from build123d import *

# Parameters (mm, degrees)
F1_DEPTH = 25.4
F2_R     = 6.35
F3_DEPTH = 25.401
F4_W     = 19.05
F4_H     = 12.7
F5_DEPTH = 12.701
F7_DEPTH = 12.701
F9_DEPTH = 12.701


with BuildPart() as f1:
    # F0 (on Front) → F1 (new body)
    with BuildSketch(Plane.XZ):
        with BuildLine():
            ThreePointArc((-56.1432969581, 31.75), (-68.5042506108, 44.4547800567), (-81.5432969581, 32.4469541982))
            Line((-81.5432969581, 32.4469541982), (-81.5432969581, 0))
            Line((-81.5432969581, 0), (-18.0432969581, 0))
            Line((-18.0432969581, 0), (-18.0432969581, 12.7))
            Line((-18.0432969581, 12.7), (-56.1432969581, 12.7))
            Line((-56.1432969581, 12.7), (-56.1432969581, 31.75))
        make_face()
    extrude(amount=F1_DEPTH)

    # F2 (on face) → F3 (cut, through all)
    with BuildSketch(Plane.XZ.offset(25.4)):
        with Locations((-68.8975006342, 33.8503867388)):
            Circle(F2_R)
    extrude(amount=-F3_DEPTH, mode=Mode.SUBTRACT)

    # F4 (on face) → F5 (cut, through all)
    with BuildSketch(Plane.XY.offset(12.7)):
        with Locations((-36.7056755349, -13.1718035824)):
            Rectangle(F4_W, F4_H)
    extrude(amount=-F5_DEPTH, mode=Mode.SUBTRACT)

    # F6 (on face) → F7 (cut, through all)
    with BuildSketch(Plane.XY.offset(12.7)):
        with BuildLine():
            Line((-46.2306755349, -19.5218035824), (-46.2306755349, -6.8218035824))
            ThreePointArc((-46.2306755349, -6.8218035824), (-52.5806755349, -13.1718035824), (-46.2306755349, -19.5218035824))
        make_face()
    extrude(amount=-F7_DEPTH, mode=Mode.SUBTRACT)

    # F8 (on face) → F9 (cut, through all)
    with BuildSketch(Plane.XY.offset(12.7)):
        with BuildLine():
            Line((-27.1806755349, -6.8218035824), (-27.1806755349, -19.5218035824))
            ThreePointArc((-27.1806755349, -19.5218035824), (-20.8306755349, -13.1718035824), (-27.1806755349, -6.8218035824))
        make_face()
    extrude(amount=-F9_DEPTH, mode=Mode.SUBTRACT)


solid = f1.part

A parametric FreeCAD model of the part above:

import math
import FreeCAD as App
import Part
import Sketcher
from FreeCAD import Vector
Q = App.Units.Quantity


def add_polygon(sketch, points):
    """Adds a closed chain of lines whose ends are joined by coincident constraints."""
    first, n = sketch.GeometryCount, len(points)
    for a, b in zip(points, points[1:] + points[:1]):
        sketch.addGeometry(Part.LineSegment(App.Vector(*a, 0), App.Vector(*b, 0)), False)
    for i in range(n):
        sketch.addConstraint(Sketcher.Constraint("Coincident", first + i, 2, first + (i + 1) % n, 1))

doc = App.newDocument("Part")
body = doc.addObject("PartDesign::Body", "Body")

# Sketch on XZ plane
sketch1 = body.newObject("Sketcher::SketchObject", "Sketch")
sketch1.AttachmentSupport = (doc.getObject("XZ_Plane"), [""])
sketch1.MapMode = "FlatFace"
sketch1.addGeometry([
    Part.ArcOfCircle(Part.Circle(Vector(-69, 32, 0), Vector(0, 0, 1), 13), math.radians(0), math.radians(177)),  # 0
    Part.LineSegment(Vector(-82, 32, 0), Vector(-82, 0, 0)),  # 1
    Part.LineSegment(Vector(-82, 0, 0), Vector(-18, 0, 0)),  # 2
    Part.LineSegment(Vector(-18, 0, 0), Vector(-18, 13, 0)),  # 3
    Part.LineSegment(Vector(-18, 13, 0), Vector(-56, 13, 0)),  # 4
    Part.LineSegment(Vector(-56, 13, 0), Vector(-56, 32, 0)),  # 5
], False)
sketch1.addConstraint([
    Sketcher.Constraint("Coincident", 0, 2, 1, 1),
    Sketcher.Constraint("Coincident", 1, 2, 2, 1),
    Sketcher.Constraint("Coincident", 2, 2, 3, 1),
    Sketcher.Constraint("Coincident", 3, 2, 4, 1),
    Sketcher.Constraint("Coincident", 4, 2, 5, 1),
    Sketcher.Constraint("Tangent", 5, 2, 0, 1),
    Sketcher.Constraint("Vertical", 1),
    Sketcher.Constraint("Horizontal", 2),
    Sketcher.Constraint("Vertical", 3),
    Sketcher.Constraint("Horizontal", 4),
    Sketcher.Constraint("Vertical", 5),
    Sketcher.Constraint("PointOnObject", 1, 2, -1),
    Sketcher.Constraint("DistanceX", 2, 1, 2, 2, Q("2.5 in")),
    Sketcher.Constraint("DistanceX", 4, 2, 4, 1, Q("1.5 in")),
    Sketcher.Constraint("DistanceY", 3, 1, 3, 2, Q("0.5 in")),
    Sketcher.Constraint("DistanceY", 5, 1, 5, 2, Q("0.75 in")),
    Sketcher.Constraint("Radius", 0, Q("12.709562 mm")),
    Sketcher.Constraint("DistanceX", 0, 3, -1, 1, Q("68.852859 mm")),
])
pad1 = body.newObject("PartDesign::Pad", "Pad")
pad1.Profile = sketch1
pad1.Length = Q("1 in")

# Sketch on XZ plane
sketch2 = body.newObject("Sketcher::SketchObject", "Sketch001")
sketch2.AttachmentSupport = (doc.getObject("XZ_Plane"), [""])
sketch2.MapMode = "FlatFace"
sketch2.AttachmentOffset = App.Placement(Vector(0, 0, 1 * 25.4), App.Rotation())
sketch2.addGeometry(Part.Circle(Vector(-69, 34, 0), Vector(0, 0, 1), 6), False)
sketch2.addConstraint([
    Sketcher.Constraint("Diameter", 0, Q("0.5 in")),
    Sketcher.Constraint("DistanceX", 0, 3, -1, 1, Q("2.7125 in")),
    Sketcher.Constraint("DistanceY", -1, 1, 0, 3, Q("33.850387 mm")),
])
pocket1 = body.newObject("PartDesign::Pocket", "Pocket")
pocket1.Profile = sketch2
pocket1.Type = "ThroughAll"

# Sketch on XY plane
sketch3 = body.newObject("Sketcher::SketchObject", "Sketch002")
sketch3.AttachmentSupport = (doc.getObject("XY_Plane"), [""])
sketch3.MapMode = "FlatFace"
sketch3.AttachmentOffset = App.Placement(Vector(0, 0, 0.5 * 25.4), App.Rotation())
add_polygon(sketch3, [(-46, -7), (-46, -20), (-27, -20), (-27, -7)])  # lines 0-3
sketch3.addConstraint([
    Sketcher.Constraint("Vertical", 0),
    Sketcher.Constraint("Horizontal", 1),
    Sketcher.Constraint("Vertical", 2),
    Sketcher.Constraint("Horizontal", 3),
    Sketcher.Constraint("DistanceY", 0, 2, 0, 1, Q("0.5 in")),
    Sketcher.Constraint("DistanceX", 1, 1, 1, 2, Q("0.75 in")),
    Sketcher.Constraint("DistanceX", 0, 2, -1, 1, Q("46.230676 mm")),
    Sketcher.Constraint("DistanceY", 0, 2, -1, 1, Q("19.521804 mm")),
])
pocket2 = body.newObject("PartDesign::Pocket", "Pocket001")
pocket2.Profile = sketch3
pocket2.Type = "ThroughAll"

# Sketch on XY plane
sketch4 = body.newObject("Sketcher::SketchObject", "Sketch003")
sketch4.AttachmentSupport = (doc.getObject("XY_Plane"), [""])
sketch4.MapMode = "FlatFace"
sketch4.AttachmentOffset = App.Placement(Vector(0, 0, 0.5 * 25.4), App.Rotation())
sketch4.addGeometry([
    Part.LineSegment(Vector(-46, -20, 0), Vector(-46, -7, 0)),
    Part.ArcOfCircle(Part.Circle(Vector(-46, -13, 0), Vector(0, 0, 1), 6), math.radians(90), math.radians(270)),
], False)
sketch4.addConstraint([
    Sketcher.Constraint("Coincident", 0, 1, 1, 2),
    Sketcher.Constraint("Coincident", 1, 1, 0, 2),
    Sketcher.Constraint("Vertical", 0),
    Sketcher.Constraint("Vertical", 1, 3, 0, 1),
    Sketcher.Constraint("Radius", 1, Q("0.25 in")),
    Sketcher.Constraint("DistanceX", 1, 3, -1, 1, Q("46.230676 mm")),
    Sketcher.Constraint("DistanceY", 1, 3, -1, 1, Q("13.171804 mm")),
])
pocket3 = body.newObject("PartDesign::Pocket", "Pocket002")
pocket3.Profile = sketch4
pocket3.Type = "ThroughAll"

# Sketch on XY plane
sketch5 = body.newObject("Sketcher::SketchObject", "Sketch004")
sketch5.AttachmentSupport = (doc.getObject("XY_Plane"), [""])
sketch5.MapMode = "FlatFace"
sketch5.AttachmentOffset = App.Placement(Vector(0, 0, 0.5 * 25.4), App.Rotation())
sketch5.addGeometry([
    Part.LineSegment(Vector(-27, -7, 0), Vector(-27, -20, 0)),
    Part.ArcOfCircle(Part.Circle(Vector(-27, -13, 0), Vector(0, 0, 1), 6), math.radians(-90), math.radians(90)),
], False)
sketch5.addConstraint([
    Sketcher.Constraint("Coincident", 0, 1, 1, 2),
    Sketcher.Constraint("Coincident", 1, 1, 0, 2),
    Sketcher.Constraint("Vertical", 0),
    Sketcher.Constraint("Vertical", 1, 3, 0, 1),
    Sketcher.Constraint("Radius", 1, Q("0.25 in")),
    Sketcher.Constraint("DistanceX", 1, 3, -1, 1, Q("27.180676 mm")),
    Sketcher.Constraint("DistanceY", 1, 3, -1, 1, Q("13.171804 mm")),
])
pocket4 = body.newObject("PartDesign::Pocket", "Pocket003")
pocket4.Profile = sketch5
pocket4.Type = "ThroughAll"

doc.recompute()
